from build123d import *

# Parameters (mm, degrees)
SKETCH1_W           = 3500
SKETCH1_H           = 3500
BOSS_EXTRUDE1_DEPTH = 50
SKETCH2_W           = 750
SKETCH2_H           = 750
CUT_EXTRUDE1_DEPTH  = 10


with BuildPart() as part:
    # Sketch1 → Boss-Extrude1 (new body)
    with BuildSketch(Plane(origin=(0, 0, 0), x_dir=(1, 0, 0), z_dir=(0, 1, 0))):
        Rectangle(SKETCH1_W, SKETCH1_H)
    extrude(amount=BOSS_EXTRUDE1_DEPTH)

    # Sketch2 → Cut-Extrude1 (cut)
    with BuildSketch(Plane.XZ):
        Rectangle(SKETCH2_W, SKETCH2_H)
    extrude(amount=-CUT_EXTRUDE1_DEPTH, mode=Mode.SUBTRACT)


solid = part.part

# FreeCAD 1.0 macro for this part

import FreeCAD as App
import Part
import Sketcher

V = App.Vector
Q = App.Units.Quantity


def add_polygon(sketch, points):
    """Adds a closed chain of lines whose ends are joined by coincident constraints."""
    first, n = sketch.GeometryCount, len(points)
    for a, b in zip(points, points[1:] + points[:1]):
        sketch.addGeometry(Part.LineSegment(App.Vector(*a, 0), App.Vector(*b, 0)), False)
    for i in range(n):
        sketch.addConstraint(Sketcher.Constraint("Coincident", first + i, 2, first + (i + 1) % n, 1))

doc = App.newDocument("Part")
body = doc.addObject("PartDesign::Body", "Body")

# Sketch on XZ plane
sketch1 = body.newObject("Sketcher::SketchObject", "Sketch")
sketch1.AttachmentSupport = (doc.getObject("XZ_Plane"), [""])
sketch1.MapMode = "FlatFace"
add_polygon(sketch1, [(-1750, -1750), (-1750, 1750), (1750, 1750), (1750, -1750)])  # lines 0-3
sketch1.addConstraint(Sketcher.Constraint("Vertical", 0))
sketch1.addConstraint(Sketcher.Constraint("Horizontal", 1))
sketch1.addConstraint(Sketcher.Constraint("Vertical", 2))
sketch1.addConstraint(Sketcher.Constraint("Horizontal", 3))
sketch1.addConstraint(Sketcher.Constraint("Symmetric", 0, 2, 2, 2, -1, 1))
sketch1.addConstraint(Sketcher.Constraint("Equal", 3, 0))
sketch1.addConstraint(Sketcher.Constraint("DistanceX", 1, 1, 1, 2, Q("3500 mm")))
pad1 = body.newObject("PartDesign::Pad", "Pad")
pad1.Profile = sketch1
pad1.Length = 50
pad1.Reversed = True

# Sketch on XZ plane
sketch2 = body.newObject("Sketcher::SketchObject", "Sketch001")
sketch2.AttachmentSupport = (doc.getObject("XZ_Plane"), [""])
sketch2.MapMode = "FlatFace"
add_polygon(sketch2, [(-375, 375), (-375, -375), (375, -375), (375, 375)])  # lines 0-3
sketch2.addConstraint(Sketcher.Constraint("Vertical", 0))
sketch2.addConstraint(Sketcher.Constraint("Horizontal", 1))
sketch2.addConstraint(Sketcher.Constraint("Vertical", 2))
sketch2.addConstraint(Sketcher.Constraint("Horizontal", 3))
sketch2.addConstraint(Sketcher.Constraint("Symmetric", 0, 2, 2, 2, -1, 1))
sketch2.addConstraint(Sketcher.Constraint("Equal", 3, 0))
sketch2.addConstraint(Sketcher.Constraint("DistanceX", 1, 1, 1, 2, Q("750 mm")))
pocket1 = body.newObject("PartDesign::Pocket", "Pocket")
pocket1.Profile = sketch2
pocket1.Length = 10

doc.recompute()
